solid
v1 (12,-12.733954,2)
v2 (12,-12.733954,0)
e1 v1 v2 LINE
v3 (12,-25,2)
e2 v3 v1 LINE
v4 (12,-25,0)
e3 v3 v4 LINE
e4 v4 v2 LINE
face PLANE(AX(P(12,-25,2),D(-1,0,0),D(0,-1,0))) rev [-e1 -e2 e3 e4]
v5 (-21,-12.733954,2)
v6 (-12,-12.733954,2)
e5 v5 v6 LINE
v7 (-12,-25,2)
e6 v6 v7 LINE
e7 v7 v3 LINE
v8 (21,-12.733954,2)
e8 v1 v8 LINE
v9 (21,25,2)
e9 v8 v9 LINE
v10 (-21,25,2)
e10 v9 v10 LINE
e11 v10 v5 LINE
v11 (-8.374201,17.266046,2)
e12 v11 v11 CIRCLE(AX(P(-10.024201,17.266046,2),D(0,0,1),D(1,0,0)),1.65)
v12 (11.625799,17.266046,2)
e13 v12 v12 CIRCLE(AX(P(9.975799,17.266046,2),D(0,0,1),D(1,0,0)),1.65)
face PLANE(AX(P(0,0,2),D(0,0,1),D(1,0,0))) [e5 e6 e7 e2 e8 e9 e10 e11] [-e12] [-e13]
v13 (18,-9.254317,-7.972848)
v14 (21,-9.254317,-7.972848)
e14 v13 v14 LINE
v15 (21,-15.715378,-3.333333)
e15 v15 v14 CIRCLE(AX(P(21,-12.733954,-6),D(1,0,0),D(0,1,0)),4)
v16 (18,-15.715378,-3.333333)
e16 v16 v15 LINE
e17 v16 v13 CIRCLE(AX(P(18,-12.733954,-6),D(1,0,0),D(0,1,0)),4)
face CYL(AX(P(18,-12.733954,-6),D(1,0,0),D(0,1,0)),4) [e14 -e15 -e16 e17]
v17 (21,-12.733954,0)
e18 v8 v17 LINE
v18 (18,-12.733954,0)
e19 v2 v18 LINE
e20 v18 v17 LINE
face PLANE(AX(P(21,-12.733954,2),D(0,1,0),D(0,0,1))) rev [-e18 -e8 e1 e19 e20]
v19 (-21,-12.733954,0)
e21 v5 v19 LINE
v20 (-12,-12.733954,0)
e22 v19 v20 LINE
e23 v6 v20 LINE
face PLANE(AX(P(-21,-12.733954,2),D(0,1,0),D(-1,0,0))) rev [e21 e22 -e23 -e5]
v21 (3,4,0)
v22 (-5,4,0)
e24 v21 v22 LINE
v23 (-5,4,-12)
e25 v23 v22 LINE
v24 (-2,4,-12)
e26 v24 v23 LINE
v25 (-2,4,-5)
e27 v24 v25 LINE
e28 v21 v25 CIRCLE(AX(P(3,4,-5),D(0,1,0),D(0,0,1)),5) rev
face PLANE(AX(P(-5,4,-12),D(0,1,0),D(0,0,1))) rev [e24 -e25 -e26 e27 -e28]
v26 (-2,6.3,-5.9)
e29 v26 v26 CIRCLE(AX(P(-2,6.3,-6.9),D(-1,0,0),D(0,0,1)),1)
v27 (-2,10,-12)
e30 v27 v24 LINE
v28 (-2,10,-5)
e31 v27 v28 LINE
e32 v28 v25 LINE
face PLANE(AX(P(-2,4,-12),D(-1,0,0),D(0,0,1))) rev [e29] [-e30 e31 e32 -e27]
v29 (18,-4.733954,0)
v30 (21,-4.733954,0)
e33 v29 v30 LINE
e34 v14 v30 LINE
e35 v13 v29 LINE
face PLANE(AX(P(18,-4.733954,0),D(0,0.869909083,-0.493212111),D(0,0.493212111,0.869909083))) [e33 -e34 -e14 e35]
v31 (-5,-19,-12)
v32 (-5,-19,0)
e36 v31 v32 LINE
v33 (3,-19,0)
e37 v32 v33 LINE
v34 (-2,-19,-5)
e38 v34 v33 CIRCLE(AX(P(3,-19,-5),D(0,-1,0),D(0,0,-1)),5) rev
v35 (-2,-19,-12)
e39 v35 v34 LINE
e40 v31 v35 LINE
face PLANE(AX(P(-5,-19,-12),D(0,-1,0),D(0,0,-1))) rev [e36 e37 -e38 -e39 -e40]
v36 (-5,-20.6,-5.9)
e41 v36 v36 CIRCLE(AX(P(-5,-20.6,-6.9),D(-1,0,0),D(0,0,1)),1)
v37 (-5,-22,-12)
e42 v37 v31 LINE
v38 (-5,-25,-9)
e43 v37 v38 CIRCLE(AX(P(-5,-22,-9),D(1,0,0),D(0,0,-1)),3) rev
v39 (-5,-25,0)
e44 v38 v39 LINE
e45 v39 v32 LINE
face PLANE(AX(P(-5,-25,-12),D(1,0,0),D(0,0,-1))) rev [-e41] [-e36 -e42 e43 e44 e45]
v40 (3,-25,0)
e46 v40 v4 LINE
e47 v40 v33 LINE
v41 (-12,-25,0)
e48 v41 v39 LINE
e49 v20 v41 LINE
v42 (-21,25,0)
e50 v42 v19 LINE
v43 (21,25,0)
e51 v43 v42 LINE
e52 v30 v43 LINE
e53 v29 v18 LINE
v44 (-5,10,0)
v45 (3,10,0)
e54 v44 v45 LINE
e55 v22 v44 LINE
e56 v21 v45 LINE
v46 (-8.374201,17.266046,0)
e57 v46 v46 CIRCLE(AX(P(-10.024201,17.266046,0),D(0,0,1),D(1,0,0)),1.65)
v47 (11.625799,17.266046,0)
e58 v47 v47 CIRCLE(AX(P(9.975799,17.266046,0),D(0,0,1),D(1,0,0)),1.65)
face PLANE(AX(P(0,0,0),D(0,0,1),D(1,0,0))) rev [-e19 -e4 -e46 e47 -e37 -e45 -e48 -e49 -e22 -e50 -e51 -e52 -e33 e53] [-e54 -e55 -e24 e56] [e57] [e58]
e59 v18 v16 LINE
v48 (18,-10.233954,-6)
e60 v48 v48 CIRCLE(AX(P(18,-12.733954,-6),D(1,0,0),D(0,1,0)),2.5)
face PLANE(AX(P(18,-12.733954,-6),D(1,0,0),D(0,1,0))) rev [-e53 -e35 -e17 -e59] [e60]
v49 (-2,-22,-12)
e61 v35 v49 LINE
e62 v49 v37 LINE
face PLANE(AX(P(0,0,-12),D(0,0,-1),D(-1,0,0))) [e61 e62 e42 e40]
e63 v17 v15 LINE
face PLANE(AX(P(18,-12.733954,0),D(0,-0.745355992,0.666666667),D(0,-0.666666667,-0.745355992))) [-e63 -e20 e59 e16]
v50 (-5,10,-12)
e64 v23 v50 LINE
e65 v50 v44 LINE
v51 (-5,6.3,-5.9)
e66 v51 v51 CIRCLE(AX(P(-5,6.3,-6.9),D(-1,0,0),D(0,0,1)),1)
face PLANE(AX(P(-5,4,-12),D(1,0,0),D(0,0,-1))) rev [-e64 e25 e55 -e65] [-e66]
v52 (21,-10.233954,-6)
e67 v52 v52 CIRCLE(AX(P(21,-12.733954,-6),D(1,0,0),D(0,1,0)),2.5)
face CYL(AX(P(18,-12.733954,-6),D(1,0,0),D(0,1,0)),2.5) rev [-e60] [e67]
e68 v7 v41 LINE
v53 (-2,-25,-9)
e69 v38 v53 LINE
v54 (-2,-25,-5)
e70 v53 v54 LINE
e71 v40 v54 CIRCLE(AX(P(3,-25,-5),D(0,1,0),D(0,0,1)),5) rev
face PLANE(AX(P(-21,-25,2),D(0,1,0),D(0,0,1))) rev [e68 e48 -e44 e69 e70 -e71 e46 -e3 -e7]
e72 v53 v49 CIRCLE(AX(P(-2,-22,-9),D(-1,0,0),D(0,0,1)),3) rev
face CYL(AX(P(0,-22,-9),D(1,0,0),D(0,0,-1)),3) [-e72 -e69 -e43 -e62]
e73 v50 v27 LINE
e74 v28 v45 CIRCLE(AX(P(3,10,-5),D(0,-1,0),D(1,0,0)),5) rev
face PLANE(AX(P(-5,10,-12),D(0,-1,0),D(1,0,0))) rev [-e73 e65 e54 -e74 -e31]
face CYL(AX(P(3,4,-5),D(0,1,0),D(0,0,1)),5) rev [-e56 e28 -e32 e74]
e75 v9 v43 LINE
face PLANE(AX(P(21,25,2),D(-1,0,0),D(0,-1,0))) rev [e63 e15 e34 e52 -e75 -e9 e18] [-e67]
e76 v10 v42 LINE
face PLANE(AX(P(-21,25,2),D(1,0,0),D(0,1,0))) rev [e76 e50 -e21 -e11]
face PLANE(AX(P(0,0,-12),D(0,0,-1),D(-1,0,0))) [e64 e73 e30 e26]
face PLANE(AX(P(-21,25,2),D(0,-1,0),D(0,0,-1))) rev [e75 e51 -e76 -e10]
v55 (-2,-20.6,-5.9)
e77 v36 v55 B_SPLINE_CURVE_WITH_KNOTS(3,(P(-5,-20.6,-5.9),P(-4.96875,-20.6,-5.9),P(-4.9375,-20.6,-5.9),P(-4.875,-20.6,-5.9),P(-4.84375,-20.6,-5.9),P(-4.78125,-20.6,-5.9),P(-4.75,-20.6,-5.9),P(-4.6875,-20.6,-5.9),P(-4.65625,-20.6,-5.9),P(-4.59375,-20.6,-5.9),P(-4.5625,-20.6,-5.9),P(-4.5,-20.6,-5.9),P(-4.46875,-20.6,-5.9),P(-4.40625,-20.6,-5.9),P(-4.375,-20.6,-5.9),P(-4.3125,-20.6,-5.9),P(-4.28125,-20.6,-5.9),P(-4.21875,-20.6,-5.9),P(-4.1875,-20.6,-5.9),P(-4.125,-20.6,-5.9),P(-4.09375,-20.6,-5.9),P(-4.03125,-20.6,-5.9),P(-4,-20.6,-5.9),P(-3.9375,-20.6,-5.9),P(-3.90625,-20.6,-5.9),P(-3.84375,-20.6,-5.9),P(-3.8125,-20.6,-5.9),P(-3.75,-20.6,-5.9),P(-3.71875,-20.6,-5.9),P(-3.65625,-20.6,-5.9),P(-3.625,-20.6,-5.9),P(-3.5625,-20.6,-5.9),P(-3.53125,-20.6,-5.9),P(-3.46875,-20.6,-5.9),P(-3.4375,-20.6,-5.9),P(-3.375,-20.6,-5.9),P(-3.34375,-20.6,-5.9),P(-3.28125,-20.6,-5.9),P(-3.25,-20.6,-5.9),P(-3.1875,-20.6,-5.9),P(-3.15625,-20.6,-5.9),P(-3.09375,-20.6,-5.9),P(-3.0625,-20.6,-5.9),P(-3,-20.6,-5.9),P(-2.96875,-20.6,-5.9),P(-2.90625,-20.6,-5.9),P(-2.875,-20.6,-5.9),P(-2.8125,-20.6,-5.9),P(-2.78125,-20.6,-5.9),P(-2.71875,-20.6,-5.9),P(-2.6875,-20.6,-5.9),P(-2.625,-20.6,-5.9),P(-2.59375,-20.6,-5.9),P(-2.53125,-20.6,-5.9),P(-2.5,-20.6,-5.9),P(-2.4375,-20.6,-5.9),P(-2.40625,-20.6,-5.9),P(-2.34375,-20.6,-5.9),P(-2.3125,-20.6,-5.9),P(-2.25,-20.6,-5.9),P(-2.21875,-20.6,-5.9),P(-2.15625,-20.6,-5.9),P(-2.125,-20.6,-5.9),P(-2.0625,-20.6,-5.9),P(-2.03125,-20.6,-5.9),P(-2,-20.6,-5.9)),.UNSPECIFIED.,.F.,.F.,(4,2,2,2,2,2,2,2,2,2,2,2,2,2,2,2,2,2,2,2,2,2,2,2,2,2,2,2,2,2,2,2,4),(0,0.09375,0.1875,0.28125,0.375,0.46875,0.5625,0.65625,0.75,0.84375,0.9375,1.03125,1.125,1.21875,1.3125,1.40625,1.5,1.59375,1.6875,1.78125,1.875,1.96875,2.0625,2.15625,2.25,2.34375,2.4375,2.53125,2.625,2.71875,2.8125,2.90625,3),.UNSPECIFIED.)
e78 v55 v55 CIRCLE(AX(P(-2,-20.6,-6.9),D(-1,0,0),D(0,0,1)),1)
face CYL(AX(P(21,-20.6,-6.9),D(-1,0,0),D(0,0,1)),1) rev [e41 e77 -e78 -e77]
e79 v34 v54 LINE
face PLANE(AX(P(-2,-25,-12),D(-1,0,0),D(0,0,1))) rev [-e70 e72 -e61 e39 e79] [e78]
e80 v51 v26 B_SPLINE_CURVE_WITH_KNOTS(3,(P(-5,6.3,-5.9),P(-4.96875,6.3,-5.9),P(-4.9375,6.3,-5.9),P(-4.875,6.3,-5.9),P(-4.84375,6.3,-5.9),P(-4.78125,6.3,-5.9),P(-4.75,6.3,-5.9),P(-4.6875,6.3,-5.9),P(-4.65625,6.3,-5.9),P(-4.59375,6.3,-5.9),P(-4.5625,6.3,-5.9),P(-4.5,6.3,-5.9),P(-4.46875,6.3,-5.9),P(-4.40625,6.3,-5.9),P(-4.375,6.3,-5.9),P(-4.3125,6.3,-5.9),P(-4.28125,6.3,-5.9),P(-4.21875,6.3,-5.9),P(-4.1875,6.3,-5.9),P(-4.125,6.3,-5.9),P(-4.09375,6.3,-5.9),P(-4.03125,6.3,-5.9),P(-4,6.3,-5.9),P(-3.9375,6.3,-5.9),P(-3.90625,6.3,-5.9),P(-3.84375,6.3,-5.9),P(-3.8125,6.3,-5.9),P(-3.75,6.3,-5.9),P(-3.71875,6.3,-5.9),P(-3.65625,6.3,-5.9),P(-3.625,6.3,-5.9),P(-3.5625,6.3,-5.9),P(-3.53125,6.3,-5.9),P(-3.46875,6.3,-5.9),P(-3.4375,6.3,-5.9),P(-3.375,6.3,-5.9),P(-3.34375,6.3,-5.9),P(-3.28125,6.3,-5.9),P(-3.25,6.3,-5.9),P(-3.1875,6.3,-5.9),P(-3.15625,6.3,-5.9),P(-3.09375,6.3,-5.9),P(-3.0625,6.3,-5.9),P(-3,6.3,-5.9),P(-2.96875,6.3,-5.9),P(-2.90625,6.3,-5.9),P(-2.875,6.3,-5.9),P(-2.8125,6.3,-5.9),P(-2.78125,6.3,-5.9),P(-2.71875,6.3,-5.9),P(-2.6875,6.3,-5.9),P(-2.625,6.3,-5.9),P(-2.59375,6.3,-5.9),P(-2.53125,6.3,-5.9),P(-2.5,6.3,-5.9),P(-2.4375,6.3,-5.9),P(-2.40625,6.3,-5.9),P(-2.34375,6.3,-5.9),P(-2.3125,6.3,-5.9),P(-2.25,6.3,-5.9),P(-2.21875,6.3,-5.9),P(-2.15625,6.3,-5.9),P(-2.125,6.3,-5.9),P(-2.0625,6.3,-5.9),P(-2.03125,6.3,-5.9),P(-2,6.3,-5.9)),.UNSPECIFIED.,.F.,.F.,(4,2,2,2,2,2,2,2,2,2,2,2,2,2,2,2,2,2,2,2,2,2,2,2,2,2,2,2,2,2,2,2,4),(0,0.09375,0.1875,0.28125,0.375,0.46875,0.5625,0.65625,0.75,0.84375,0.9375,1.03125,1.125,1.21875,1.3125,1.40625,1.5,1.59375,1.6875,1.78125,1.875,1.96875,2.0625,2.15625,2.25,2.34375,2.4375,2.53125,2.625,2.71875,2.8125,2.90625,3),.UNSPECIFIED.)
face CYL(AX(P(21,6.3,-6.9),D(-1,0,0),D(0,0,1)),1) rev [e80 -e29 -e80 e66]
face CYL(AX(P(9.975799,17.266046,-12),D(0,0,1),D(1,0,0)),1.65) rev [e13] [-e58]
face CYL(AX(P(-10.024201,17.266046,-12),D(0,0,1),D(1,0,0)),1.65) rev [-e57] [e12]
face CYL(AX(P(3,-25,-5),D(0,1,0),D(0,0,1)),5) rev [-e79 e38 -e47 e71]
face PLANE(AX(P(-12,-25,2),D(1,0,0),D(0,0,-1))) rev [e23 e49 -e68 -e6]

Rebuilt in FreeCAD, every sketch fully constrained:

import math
import FreeCAD as App
import Part
import Sketcher

V = App.Vector
Q = App.Units.Quantity


def edges_at(feature, points):
    """Names of the edges that pass closest to the given points."""
    edges = feature.Shape.Edges
    near = lambda p: min(range(len(edges)), key=lambda i: edges[i].distToShape(Part.Vertex(*p))[0])
    return sorted({f"Edge{near(p) + 1}" for p in points})


def add_polygon(sketch, points):
    """Adds a closed chain of lines whose ends are joined by coincident constraints."""
    first, n = sketch.GeometryCount, len(points)
    for a, b in zip(points, points[1:] + points[:1]):
        sketch.addGeometry(Part.LineSegment(App.Vector(*a, 0), App.Vector(*b, 0)), False)
    for i in range(n):
        sketch.addConstraint(Sketcher.Constraint("Coincident", first + i, 2, first + (i + 1) % n, 1))

doc = App.newDocument("Part")
body = doc.addObject("PartDesign::Body", "Body")

# Sketch on XY plane
sketch1 = body.newObject("Sketcher::SketchObject", "Sketch")
sketch1.AttachmentSupport = (doc.getObject("XY_Plane"), [""])
sketch1.MapMode = "FlatFace"
add_polygon(sketch1, [(-21, 25), (-21, -25), (21, -25), (21, 25)])  # lines 0-3
sketch1.addConstraint(Sketcher.Constraint("Vertical", 0))
sketch1.addConstraint(Sketcher.Constraint("Horizontal", 1))
sketch1.addConstraint(Sketcher.Constraint("Vertical", 2))
sketch1.addConstraint(Sketcher.Constraint("Horizontal", 3))
sketch1.addConstraint(Sketcher.Constraint("Symmetric", 0, 2, 2, 2, -1, 1))
sketch1.addConstraint(Sketcher.Constraint("DistanceX", 1, 1, 1, 2, Q("42 mm")))
sketch1.addConstraint(Sketcher.Constraint("DistanceY", 0, 2, 0, 1, Q("50 mm")))
pad1 = body.newObject("PartDesign::Pad", "Pad")
pad1.Profile = sketch1
pad1.Length = 2

# Sketch on XY plane
sketch2 = body.newObject("Sketcher::SketchObject", "Sketch001")
sketch2.AttachmentSupport = (doc.getObject("XY_Plane"), [""])
sketch2.MapMode = "FlatFace"
add_polygon(sketch2, [(-2, -19), (-2, -25), (-5, -25), (-5, -19)])  # lines 0-3
add_polygon(sketch2, [(-2, 10), (-2, 4), (-5, 4), (-5, 10)])  # lines 4-7
sketch2.addConstraint(Sketcher.Constraint("Vertical", 0))
sketch2.addConstraint(Sketcher.Constraint("Horizontal", 1))
sketch2.addConstraint(Sketcher.Constraint("Vertical", 2))
sketch2.addConstraint(Sketcher.Constraint("Horizontal", 3))
sketch2.addConstraint(Sketcher.Constraint("Vertical", 4))
sketch2.addConstraint(Sketcher.Constraint("Horizontal", 5))
sketch2.addConstraint(Sketcher.Constraint("Vertical", 6))
sketch2.addConstraint(Sketcher.Constraint("Horizontal", 7))
sketch2.addConstraint(Sketcher.Constraint("Vertical", 3, 2, 4, 2))
sketch2.addConstraint(Sketcher.Constraint("Vertical", 2, 2, 5, 2))
sketch2.addConstraint(Sketcher.Constraint("Equal", 2, 4))
sketch2.addConstraint(Sketcher.Constraint("DistanceX", 1, 2, 1, 1, Q("3 mm")))
sketch2.addConstraint(Sketcher.Constraint("DistanceY", 0, 2, 0, 1, Q("6 mm")))
sketch2.addConstraint(Sketcher.Constraint("DistanceX", 0, 2, -1, 1, Q("2 mm")))
sketch2.addConstraint(Sketcher.Constraint("DistanceY", 0, 2, -1, 1, Q("25 mm")))
sketch2.addConstraint(Sketcher.Constraint("DistanceY", -1, 1, 4, 2, Q("4 mm")))
pad2 = body.newObject("PartDesign::Pad", "Pad001")
pad2.Profile = sketch2
pad2.Length = 12
pad2.Reversed = True
doc.recompute()

fillet = body.newObject("PartDesign::Fillet", "Fillet")
fillet.Base = (pad2, edges_at(pad2, [(-2, 7, 0)]))
fillet.Radius = 5
doc.recompute()

fillet2 = body.newObject("PartDesign::Fillet", "Fillet001")
fillet2.Base = (fillet, edges_at(fillet, [(-2, -22, 0)]))
fillet2.Radius = 5

# Sketch on YZ plane
sketch3 = body.newObject("Sketcher::SketchObject", "Sketch002")
sketch3.AttachmentSupport = (doc.getObject("YZ_Plane"), [""])
sketch3.MapMode = "FlatFace"
sketch3.AttachmentOffset = App.Placement(V(0, 0, -5), App.Rotation())
sketch3.addGeometry(Part.Circle(V(-20.6, -6.9, 0), V(0, 0, 1), 1), False)
sketch3.addGeometry(Part.Circle(V(6.3, -6.9, 0), V(0, 0, 1), 1), False)
sketch3.addConstraint(Sketcher.Constraint("Equal", 0, 1))
sketch3.addConstraint(Sketcher.Constraint("Horizontal", 0, 3, 1, 3))
sketch3.addConstraint(Sketcher.Constraint("Diameter", 0, Q("2 mm")))
sketch3.addConstraint(Sketcher.Constraint("DistanceX", 0, 3, -1, 1, Q("20.6 mm")))
sketch3.addConstraint(Sketcher.Constraint("DistanceY", 0, 3, -1, 1, Q("6.9 mm")))
sketch3.addConstraint(Sketcher.Constraint("DistanceX", -1, 1, 1, 3, Q("6.3 mm")))
pocket1 = body.newObject("PartDesign::Pocket", "Pocket")
pocket1.Profile = sketch3
pocket1.Type = "ThroughAll"
pocket1.Reversed = True

# Sketch on YZ plane
sketch4 = body.newObject("Sketcher::SketchObject", "Sketch003")
sketch4.AttachmentSupport = (doc.getObject("YZ_Plane"), [""])
sketch4.MapMode = "FlatFace"
sketch4.AttachmentOffset = App.Placement(V(0, 0, 21), App.Rotation())
sketch4.addGeometry(Part.LineSegment(V(-4.7, 0, 0), V(-12.7, 0, 0)), False)
sketch4.addGeometry(Part.LineSegment(V(-12.7, 0, 0), V(-15.7, -3.3, 0)), False)
sketch4.addGeometry(Part.ArcOfCircle(Part.Circle(V(-12.7, -6, 0), V(0, 0, 1), 4), math.radians(138), math.radians(330)), False)
sketch4.addGeometry(Part.LineSegment(V(-9.3, -8, 0), V(-4.7, 0, 0)), False)
sketch4.addGeometry(Part.Circle(V(-12.7, -6, 0), V(0, 0, 1), 2.5), False)
sketch4.addConstraint(Sketcher.Constraint("Coincident", 0, 2, 1, 1))
sketch4.addConstraint(Sketcher.Constraint("Tangent", 1, 2, 2, 1))
sketch4.addConstraint(Sketcher.Constraint("Tangent", 2, 2, 3, 1))
sketch4.addConstraint(Sketcher.Constraint("Coincident", 3, 2, 0, 1))
sketch4.addConstraint(Sketcher.Constraint("Horizontal", 0))
sketch4.addConstraint(Sketcher.Constraint("Coincident", 4, 3, 2, 3))
sketch4.addConstraint(Sketcher.Constraint("PointOnObject", 0, 2, -1))
sketch4.addConstraint(Sketcher.Constraint("Vertical", 4, 3, 0, 2))
sketch4.addConstraint(Sketcher.Constraint("Diameter", 4, Q("5 mm")))
sketch4.addConstraint(Sketcher.Constraint("Radius", 2, Q("4 mm")))
sketch4.addConstraint(Sketcher.Constraint("DistanceX", 0, 2, 0, 1, Q("8 mm")))
sketch4.addConstraint(Sketcher.Constraint("DistanceY", 2, 3, -1, 1, Q("6 mm")))
sketch4.addConstraint(Sketcher.Constraint("DistanceX", 2, 3, -1, 1, Q("12.733954 mm")))
pad3 = body.newObject("PartDesign::Pad", "Pad002")
pad3.Profile = sketch4
pad3.Length = 3
pad3.Reversed = True

# Sketch on XY plane
sketch5 = body.newObject("Sketcher::SketchObject", "Sketch004")
sketch5.AttachmentSupport = (doc.getObject("XY_Plane"), [""])
sketch5.MapMode = "FlatFace"
add_polygon(sketch5, [(21, -13), (21, -25), (12, -25), (12, -13)])  # lines 0-3
add_polygon(sketch5, [(-12, -13), (-12, -25), (-21, -25), (-21, -13)])  # lines 4-7
sketch5.addConstraint(Sketcher.Constraint("Vertical", 0))
sketch5.addConstraint(Sketcher.Constraint("Horizontal", 1))
sketch5.addConstraint(Sketcher.Constraint("Vertical", 2))
sketch5.addConstraint(Sketcher.Constraint("Horizontal", 3))
sketch5.addConstraint(Sketcher.Constraint("Vertical", 4))
sketch5.addConstraint(Sketcher.Constraint("Horizontal", 5))
sketch5.addConstraint(Sketcher.Constraint("Vertical", 6))
sketch5.addConstraint(Sketcher.Constraint("Horizontal", 7))
sketch5.addConstraint(Sketcher.Constraint("Symmetric", 1, 2, 4, 2, -2))
sketch5.addConstraint(Sketcher.Constraint("Symmetric", 3, 2, 6, 2, -2))
sketch5.addConstraint(Sketcher.Constraint("DistanceX", 1, 2, 1, 1, Q("9 mm")))
sketch5.addConstraint(Sketcher.Constraint("DistanceX", -1, 1, 0, 2, Q("21 mm")))
sketch5.addConstraint(Sketcher.Constraint("DistanceY", 0, 2, -1, 1, Q("25 mm")))
sketch5.addConstraint(Sketcher.Constraint("DistanceY", 0, 2, 0, 1, Q("12.266046 mm")))
pocket2 = body.newObject("PartDesign::Pocket", "Pocket001")
pocket2.Profile = sketch5
pocket2.Type = "ThroughAll"
pocket2.Reversed = True

# Sketch on XY plane
sketch6 = body.newObject("Sketcher::SketchObject", "Sketch005")
sketch6.AttachmentSupport = (doc.getObject("XY_Plane"), [""])
sketch6.MapMode = "FlatFace"
sketch6.AttachmentOffset = App.Placement(V(0, 0, 2), App.Rotation())
sketch6.addGeometry(Part.Circle(V(10, 17.3, 0), V(0, 0, 1), 1.6), False)
sketch6.addGeometry(Part.Circle(V(-10, 17.3, 0), V(0, 0, 1), 1.6), False)
sketch6.addConstraint(Sketcher.Constraint("Equal", 0, 1))
sketch6.addConstraint(Sketcher.Constraint("Horizontal", 0, 3, 1, 3))
sketch6.addConstraint(Sketcher.Constraint("Diameter", 0, Q("3.3 mm")))
sketch6.addConstraint(Sketcher.Constraint("DistanceX", 1, 3, 0, 3, Q("20 mm")))
sketch6.addConstraint(Sketcher.Constraint("DistanceX", -1, 1, 0, 3, Q("9.975799 mm")))
sketch6.addConstraint(Sketcher.Constraint("DistanceY", -1, 1, 0, 3, Q("17.266046 mm")))
pocket3 = body.newObject("PartDesign::Pocket", "Pocket002")
pocket3.Profile = sketch6
pocket3.Type = "ThroughAll"
doc.recompute()

fillet3 = body.newObject("PartDesign::Fillet", "Fillet002")
fillet3.Base = (pocket3, edges_at(pocket3, [(-3.5, -25, -12)]))
fillet3.Radius = 3

doc.recompute()
